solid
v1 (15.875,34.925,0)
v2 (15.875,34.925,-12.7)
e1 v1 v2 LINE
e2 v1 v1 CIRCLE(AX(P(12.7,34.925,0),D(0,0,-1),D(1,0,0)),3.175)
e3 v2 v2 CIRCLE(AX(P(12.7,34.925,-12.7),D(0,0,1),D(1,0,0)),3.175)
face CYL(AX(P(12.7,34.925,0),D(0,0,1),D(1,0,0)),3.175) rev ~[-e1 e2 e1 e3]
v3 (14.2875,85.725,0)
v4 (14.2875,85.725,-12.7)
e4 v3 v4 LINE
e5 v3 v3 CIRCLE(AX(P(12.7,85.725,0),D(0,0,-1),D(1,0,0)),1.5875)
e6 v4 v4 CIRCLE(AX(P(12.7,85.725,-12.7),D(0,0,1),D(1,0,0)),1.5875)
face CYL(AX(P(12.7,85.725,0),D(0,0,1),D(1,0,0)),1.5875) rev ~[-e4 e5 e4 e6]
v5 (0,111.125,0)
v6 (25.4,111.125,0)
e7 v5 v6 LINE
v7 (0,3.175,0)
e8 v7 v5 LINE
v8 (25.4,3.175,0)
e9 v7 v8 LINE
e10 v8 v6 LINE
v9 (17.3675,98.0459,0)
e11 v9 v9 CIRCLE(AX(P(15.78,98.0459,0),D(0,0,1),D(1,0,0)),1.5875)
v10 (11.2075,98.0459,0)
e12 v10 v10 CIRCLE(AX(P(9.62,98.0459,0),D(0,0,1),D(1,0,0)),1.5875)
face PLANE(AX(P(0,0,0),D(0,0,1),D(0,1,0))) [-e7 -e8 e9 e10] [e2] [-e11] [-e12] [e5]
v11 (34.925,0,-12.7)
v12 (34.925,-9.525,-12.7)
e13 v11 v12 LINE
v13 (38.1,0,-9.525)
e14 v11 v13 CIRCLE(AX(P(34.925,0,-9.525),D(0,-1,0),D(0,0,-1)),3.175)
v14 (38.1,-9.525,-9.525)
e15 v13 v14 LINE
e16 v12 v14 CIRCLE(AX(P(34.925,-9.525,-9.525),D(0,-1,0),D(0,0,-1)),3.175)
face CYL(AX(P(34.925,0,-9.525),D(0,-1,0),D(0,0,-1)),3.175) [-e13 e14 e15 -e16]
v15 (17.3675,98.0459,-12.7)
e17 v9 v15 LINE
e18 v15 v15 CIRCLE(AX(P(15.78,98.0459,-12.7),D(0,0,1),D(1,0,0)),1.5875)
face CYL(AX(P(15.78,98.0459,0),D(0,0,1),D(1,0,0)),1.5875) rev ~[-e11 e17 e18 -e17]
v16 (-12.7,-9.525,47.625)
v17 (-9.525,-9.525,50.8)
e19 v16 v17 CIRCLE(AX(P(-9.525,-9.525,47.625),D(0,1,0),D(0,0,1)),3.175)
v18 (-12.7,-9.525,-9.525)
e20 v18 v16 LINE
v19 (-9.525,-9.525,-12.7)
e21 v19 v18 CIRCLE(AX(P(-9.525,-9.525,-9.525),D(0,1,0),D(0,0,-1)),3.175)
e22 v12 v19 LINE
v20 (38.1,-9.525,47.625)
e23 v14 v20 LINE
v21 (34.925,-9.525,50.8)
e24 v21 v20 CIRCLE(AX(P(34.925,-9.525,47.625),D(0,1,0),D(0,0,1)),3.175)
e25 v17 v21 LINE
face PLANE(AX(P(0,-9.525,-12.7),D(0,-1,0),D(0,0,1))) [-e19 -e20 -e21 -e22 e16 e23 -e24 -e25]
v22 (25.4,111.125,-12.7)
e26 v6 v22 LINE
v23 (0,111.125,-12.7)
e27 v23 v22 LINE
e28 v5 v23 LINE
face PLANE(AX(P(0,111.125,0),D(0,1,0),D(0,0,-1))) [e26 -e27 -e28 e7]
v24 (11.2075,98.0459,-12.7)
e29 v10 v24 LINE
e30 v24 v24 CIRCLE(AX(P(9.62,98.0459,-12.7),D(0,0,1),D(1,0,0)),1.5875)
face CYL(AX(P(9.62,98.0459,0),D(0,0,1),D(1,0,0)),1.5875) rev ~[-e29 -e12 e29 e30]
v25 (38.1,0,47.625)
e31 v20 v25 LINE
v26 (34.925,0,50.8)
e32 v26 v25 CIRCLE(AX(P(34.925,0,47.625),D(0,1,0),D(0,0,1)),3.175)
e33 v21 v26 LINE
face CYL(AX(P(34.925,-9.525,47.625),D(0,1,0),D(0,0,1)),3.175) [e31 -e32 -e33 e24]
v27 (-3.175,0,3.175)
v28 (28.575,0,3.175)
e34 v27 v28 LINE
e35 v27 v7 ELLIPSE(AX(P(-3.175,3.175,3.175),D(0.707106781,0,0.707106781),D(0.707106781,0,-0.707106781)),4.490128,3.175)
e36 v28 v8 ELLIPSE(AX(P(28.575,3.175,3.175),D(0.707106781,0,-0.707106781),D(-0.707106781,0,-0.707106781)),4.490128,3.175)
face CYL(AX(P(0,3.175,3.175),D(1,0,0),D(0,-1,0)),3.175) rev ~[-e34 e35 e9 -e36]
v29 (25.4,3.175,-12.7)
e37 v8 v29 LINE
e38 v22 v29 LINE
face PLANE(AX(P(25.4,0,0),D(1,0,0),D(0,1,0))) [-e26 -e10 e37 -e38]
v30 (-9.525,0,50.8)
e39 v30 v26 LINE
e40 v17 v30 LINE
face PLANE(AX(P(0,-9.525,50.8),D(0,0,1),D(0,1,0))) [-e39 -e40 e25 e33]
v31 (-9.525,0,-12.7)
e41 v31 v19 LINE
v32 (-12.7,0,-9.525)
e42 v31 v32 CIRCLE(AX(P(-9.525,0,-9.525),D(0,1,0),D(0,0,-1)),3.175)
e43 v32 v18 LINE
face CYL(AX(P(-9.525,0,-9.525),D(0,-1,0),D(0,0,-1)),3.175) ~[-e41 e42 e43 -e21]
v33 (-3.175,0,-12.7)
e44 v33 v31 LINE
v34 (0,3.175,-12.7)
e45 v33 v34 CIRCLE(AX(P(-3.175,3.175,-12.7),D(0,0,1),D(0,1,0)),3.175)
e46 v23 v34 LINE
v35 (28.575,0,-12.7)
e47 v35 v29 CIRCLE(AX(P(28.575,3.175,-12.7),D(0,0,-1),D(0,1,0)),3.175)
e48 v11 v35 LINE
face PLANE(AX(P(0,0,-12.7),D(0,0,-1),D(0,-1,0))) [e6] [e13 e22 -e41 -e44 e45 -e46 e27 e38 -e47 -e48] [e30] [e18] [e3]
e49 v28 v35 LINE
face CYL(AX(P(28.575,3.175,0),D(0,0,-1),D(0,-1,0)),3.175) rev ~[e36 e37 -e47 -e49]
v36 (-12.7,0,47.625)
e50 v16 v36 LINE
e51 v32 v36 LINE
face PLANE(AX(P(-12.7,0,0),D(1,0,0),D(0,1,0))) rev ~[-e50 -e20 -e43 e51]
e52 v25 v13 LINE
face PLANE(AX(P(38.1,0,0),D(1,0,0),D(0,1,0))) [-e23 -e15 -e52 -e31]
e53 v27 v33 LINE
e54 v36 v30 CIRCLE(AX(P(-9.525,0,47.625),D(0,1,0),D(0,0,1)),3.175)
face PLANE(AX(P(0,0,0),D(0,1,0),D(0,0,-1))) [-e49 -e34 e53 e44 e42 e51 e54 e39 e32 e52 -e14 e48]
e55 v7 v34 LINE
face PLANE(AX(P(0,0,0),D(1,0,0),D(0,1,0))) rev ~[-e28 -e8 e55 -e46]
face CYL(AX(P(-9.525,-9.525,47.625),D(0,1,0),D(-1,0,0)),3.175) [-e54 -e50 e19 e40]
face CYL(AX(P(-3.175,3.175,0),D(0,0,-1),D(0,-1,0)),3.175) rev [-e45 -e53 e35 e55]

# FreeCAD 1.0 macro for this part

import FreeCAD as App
import Part
import Sketcher
Q = App.Units.Quantity


def edges_at(feature, points):
    """Names of the edges that pass closest to the given points."""
    edges = feature.Shape.Edges
    near = lambda p: min(range(len(edges)), key=lambda i: edges[i].distToShape(Part.Vertex(*p))[0])
    return sorted({f"Edge{near(p) + 1}" for p in points})


def add_polygon(sketch, points):
    """Adds a closed chain of lines whose ends are joined by coincident constraints."""
    first, n = sketch.GeometryCount, len(points)
    for a, b in zip(points, points[1:] + points[:1]):
        sketch.addGeometry(Part.LineSegment(App.Vector(*a, 0), App.Vector(*b, 0)), False)
    for i in range(n):
        sketch.addConstraint(Sketcher.Constraint("Coincident", first + i, 2, first + (i + 1) % n, 1))

doc = App.newDocument("Part")
body = doc.addObject("PartDesign::Body", "Body")

sketch1 = body.newObject("Sketcher::SketchObject", "Sketch")
sketch1.AttachmentSupport = (doc.getObject("YZ_Plane"), [""])
sketch1.MapMode = "FlatFace"
add_polygon(sketch1, [(111, 0), (0, 0), (0, -13), (111, -13)])
sketch1.addConstraint(Sketcher.Constraint("Horizontal", 0))
sketch1.addConstraint(Sketcher.Constraint("Vertical", 1))
sketch1.addConstraint(Sketcher.Constraint("Horizontal", 2))
sketch1.addConstraint(Sketcher.Constraint("Vertical", 3))
sketch1.addConstraint(Sketcher.Constraint("Coincident", 0, 2, -1, 1))
sketch1.addConstraint(Sketcher.Constraint("DistanceY", 1, 2, 1, 1, Q("0.5 in")))
sketch1.addConstraint(Sketcher.Constraint("DistanceX", 0, 2, 0, 1, Q("4.375 in")))
pad1 = body.newObject("PartDesign::Pad", "Pad")
pad1.Profile = sketch1
pad1.Length = Q("1 in")

sketch2 = body.newObject("Sketcher::SketchObject", "Sketch001")
sketch2.AttachmentSupport = (doc.getObject("XY_Plane"), [""])
sketch2.MapMode = "FlatFace"
sketch2.addGeometry(Part.Circle(App.Vector(12.7, 34.9, 0), App.Vector(0, 0, 1), 3.2), False)
sketch2.addGeometry(Part.Circle(App.Vector(12.7, 85.7, 0), App.Vector(0, 0, 1), 1.6), False)
sketch2.addGeometry(Part.Circle(App.Vector(15.8, 98, 0), App.Vector(0, 0, 1), 1.6), False)
sketch2.addGeometry(Part.Circle(App.Vector(9.6, 98, 0), App.Vector(0, 0, 1), 1.6), False)
sketch2.addConstraint(Sketcher.Constraint("Equal", 1, 2))
sketch2.addConstraint(Sketcher.Constraint("Equal", 2, 3))
sketch2.addConstraint(Sketcher.Constraint("Horizontal", 2, 3, 3, 3))
sketch2.addConstraint(Sketcher.Constraint("Vertical", 0, 3, 1, 3))
sketch2.addConstraint(Sketcher.Constraint("Diameter", 0, Q("0.25 in")))
sketch2.addConstraint(Sketcher.Constraint("Diameter", 1, Q("0.125 in")))
sketch2.addConstraint(Sketcher.Constraint("DistanceY", 0, 3, 1, 3, Q("2 in")))
sketch2.addConstraint(Sketcher.Constraint("DistanceX", -1, 1, 0, 3, Q("0.5 in")))
sketch2.addConstraint(Sketcher.Constraint("DistanceY", -1, 1, 0, 3, Q("1.375 in")))
sketch2.addConstraint(Sketcher.Constraint("DistanceX", 1, 3, 2, 3, Q("3.08 mm")))
sketch2.addConstraint(Sketcher.Constraint("DistanceX", 3, 3, 1, 3, Q("3.08 mm")))
sketch2.addConstraint(Sketcher.Constraint("DistanceY", -1, 1, 2, 3, Q("98.046 mm")))
pocket1 = body.newObject("PartDesign::Pocket", "Pocket")
pocket1.Profile = sketch2
pocket1.Length = Q("1 in")

sketch3 = body.newObject("Sketcher::SketchObject", "Sketch002")
sketch3.AttachmentSupport = (doc.getObject("YZ_Plane"), [""])
sketch3.MapMode = "FlatFace"
add_polygon(sketch3, [(0, -13), (0, 51), (-10, 51), (-10, -13)])
sketch3.addConstraint(Sketcher.Constraint("Vertical", 0))
sketch3.addConstraint(Sketcher.Constraint("Horizontal", 1))
sketch3.addConstraint(Sketcher.Constraint("Vertical", 2))
sketch3.addConstraint(Sketcher.Constraint("Horizontal", 3))
sketch3.addConstraint(Sketcher.Constraint("PointOnObject", 0, 2, -2))
sketch3.addConstraint(Sketcher.Constraint("DistanceY", 0, 1, 0, 2, Q("2.5 in")))
sketch3.addConstraint(Sketcher.Constraint("DistanceY", 2, 2, -1, 1, Q("0.5 in")))
sketch3.addConstraint(Sketcher.Constraint("DistanceX", 1, 2, 1, 1, Q("0.375 in")))
pad2 = body.newObject("PartDesign::Pad", "Pad001")
pad2.Profile = sketch3
pad2.Type = "TwoLengths"
pad2.Length = Q("1.5 in")
pad2.Length2 = Q("0.5 in")
doc.recompute()

fillet = body.newObject("PartDesign::Fillet", "Fillet")
fillet.Base = (pad2, edges_at(pad2, [(25.4, 0, -6.35), (12.7, 0, 0), (0, 0, -6.35)]))
fillet.Radius = Q("0.125 in")
doc.recompute()

fillet2 = body.newObject("PartDesign::Fillet", "Fillet001")
fillet2.Base = (fillet, edges_at(fillet, [
    (38.1, -4.763, -12.7),
    (38.1, -4.763, 50.8),
    (-12.7, -4.763, 50.8),
    (-12.7, -4.763, -12.7),
]))
fillet2.Radius = Q("0.125 in")

doc.recompute()
